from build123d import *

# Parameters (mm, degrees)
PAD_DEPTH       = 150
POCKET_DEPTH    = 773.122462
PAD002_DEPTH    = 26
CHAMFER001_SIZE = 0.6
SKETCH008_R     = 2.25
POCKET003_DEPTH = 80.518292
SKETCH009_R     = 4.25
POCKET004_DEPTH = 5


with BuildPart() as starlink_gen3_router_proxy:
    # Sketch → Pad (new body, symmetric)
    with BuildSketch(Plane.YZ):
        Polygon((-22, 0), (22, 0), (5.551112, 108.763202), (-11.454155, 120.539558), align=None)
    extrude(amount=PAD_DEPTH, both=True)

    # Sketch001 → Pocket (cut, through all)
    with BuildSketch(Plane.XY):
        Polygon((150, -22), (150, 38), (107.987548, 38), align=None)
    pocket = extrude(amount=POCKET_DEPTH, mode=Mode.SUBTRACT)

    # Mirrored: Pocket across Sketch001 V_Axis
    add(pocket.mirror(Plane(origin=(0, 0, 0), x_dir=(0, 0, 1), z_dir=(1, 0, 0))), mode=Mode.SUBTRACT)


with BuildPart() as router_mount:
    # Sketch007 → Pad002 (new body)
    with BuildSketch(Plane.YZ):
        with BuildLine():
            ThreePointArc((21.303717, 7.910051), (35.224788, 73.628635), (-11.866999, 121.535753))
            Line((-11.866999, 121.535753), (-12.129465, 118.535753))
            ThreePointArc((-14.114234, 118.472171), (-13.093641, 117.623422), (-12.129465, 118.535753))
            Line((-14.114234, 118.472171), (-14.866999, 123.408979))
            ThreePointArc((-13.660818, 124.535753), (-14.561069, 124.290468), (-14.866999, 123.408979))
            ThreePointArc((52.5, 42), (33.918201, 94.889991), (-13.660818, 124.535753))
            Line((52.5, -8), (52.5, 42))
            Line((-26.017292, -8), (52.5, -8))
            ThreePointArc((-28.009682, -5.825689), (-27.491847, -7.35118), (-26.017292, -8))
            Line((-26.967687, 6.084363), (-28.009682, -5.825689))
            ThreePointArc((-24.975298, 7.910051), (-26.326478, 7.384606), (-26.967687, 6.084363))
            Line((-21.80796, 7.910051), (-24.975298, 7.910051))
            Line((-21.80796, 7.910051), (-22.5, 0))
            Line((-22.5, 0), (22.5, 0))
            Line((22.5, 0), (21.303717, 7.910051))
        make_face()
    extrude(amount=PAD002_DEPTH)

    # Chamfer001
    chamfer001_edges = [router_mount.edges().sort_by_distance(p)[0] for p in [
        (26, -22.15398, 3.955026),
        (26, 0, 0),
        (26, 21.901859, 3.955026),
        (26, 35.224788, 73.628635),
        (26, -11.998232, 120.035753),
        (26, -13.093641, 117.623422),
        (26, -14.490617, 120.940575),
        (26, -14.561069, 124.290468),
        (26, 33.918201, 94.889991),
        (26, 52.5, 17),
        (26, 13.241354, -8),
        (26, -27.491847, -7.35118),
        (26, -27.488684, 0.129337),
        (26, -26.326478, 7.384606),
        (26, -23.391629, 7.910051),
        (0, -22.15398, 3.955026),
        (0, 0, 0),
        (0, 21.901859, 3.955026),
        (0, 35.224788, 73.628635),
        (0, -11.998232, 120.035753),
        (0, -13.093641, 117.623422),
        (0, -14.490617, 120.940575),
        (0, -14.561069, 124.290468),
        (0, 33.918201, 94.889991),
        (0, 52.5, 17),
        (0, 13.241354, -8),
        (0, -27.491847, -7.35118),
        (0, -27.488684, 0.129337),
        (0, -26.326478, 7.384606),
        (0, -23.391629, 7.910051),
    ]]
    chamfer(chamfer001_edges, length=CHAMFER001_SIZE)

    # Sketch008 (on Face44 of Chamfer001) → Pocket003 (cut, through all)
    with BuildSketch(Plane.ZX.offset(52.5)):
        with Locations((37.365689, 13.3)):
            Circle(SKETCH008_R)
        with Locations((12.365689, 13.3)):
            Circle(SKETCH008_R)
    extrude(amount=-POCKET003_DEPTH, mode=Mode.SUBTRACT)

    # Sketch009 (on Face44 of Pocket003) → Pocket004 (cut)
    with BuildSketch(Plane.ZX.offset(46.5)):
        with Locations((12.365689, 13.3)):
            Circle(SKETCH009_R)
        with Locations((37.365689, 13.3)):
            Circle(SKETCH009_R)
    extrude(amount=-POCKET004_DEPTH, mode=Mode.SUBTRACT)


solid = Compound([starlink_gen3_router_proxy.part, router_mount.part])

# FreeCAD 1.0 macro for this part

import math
import FreeCAD as App
import Part
import Sketcher
from FreeCAD import Vector
Q = App.Units.Quantity


def edges_at(feature, points):
    """Names of the edges that pass closest to the given points."""
    edges = feature.Shape.Edges
    near = lambda p: min(range(len(edges)), key=lambda i: edges[i].distToShape(Part.Vertex(*p))[0])
    return sorted({f"Edge{near(p) + 1}" for p in points})


def add_polygon(sketch, points):
    """Adds a closed chain of lines whose ends are joined by coincident constraints."""
    first, n = sketch.GeometryCount, len(points)
    for a, b in zip(points, points[1:] + points[:1]):
        sketch.addGeometry(Part.LineSegment(App.Vector(*a, 0), App.Vector(*b, 0)), False)
    for i in range(n):
        sketch.addConstraint(Sketcher.Constraint("Coincident", first + i, 2, first + (i + 1) % n, 1))

doc = App.newDocument("Part")
params = doc.addObject("Spreadsheet::Sheet", "Params")
for row, (alias, value) in enumerate([
    ("sketch1_width", "44 mm"),
    ("sketch1_length", "110 mm"),
    ("sketch1_length2", "121 mm"),
    ("pad1_length", "300 mm"),
    ("sketch2_height", "60 mm"),
    ("sketch3_radius", "70.999999 mm"),
    ("sketch3_radius2", "1.999999 mm"),
    ("sketch3_radius3", "1 mm"),
    ("sketch3_width", "45 mm"),
    ("sketch3_height", "50 mm"),
    ("pad2_length", "26 mm"),
    ("chamfer_size", "0.6 mm"),
    ("sketch4_diameter", "4.5 mm"),
    ("sketch5_diameter", "8.5 mm"),
    ("pocket3_length", "5 mm"),
], start=1):
    params.set(f"A{row}", alias)
    params.set(f"B{row}", "=" + value)
    params.setAlias(f"B{row}", alias)

body = doc.addObject("PartDesign::Body", "Body")

sketch1 = doc.addObject("Sketcher::SketchObject", "Sketch")
body.addObject(sketch1)
sketch1.AttachmentSupport = (doc.YZ_Plane, [""])
sketch1.MapMode = "FlatFace"
add_polygon(sketch1, [(-22, 0), (22, 0), (5.551112, 108.763202), (-11.454155, 120.539558)])
sketch1.addConstraint([
    Sketcher.Constraint("Horizontal", 0),
    Sketcher.Constraint("Symmetric", 0, 2, 3, 2, -1, 1),
    Sketcher.Constraint("DistanceX", 0, 1, 0, 2, Q("44 mm")),
    Sketcher.Constraint("Angle", 3, Q("-95 deg")),
    Sketcher.Constraint("Distance", 1, Q("110 mm")),
    Sketcher.Constraint("Distance", 3, Q("121 mm")),
    Sketcher.Constraint("Angle", 1, Q("98.6 deg")),
])
sketch1.setExpression("Constraints[6]", "Params.sketch1_width")
sketch1.setExpression("Constraints[8]", "Params.sketch1_length")
sketch1.setExpression("Constraints[9]", "Params.sketch1_length2")
pad1 = doc.addObject("PartDesign::Pad", "Pad")
body.addObject(pad1)
pad1.Profile = sketch1
pad1.setExpression("Length", "Params.pad1_length")
pad1.Midplane = True

sketch2 = doc.addObject("Sketcher::SketchObject", "Sketch001")
body.addObject(sketch2)
sketch2.AttachmentSupport = (doc.XY_Plane, [""])
sketch2.MapMode = "FlatFace"
add_polygon(sketch2, [(150, -22), (150, 38), (107.987548, 38)])
sketch2.addConstraint([
    Sketcher.Constraint("Vertical", 0),
    Sketcher.Constraint("Horizontal", 1),
    Sketcher.Constraint("DistanceY", 0, 1, 0, 2, Q("60 mm")),
    Sketcher.Constraint("Angle", 2, Q("-55 deg")),
    Sketcher.Constraint("DistanceX", -1, 1, 0, 2, Q("150 mm")),
    Sketcher.Constraint("DistanceY", -1, 1, 0, 2, Q("38 mm")),
])
sketch2.setExpression("Constraints[5]", "Params.sketch2_height")
pocket1 = doc.addObject("PartDesign::Pocket", "Pocket")
body.addObject(pocket1)
pocket1.Profile = sketch2
pocket1.Type = "ThroughAll"
pocket1.Reversed = True
doc.recompute()

mirrored = doc.addObject("PartDesign::Mirrored", "Mirrored")
body.addObject(mirrored)
mirrored.Originals = [pocket1]
mirrored.MirrorPlane = (doc.YZ_Plane, [""])
body.Tip = mirrored
body2 = doc.addObject("PartDesign::Body", "Body001")

sketch3 = doc.addObject("Sketcher::SketchObject", "Sketch002")
body2.addObject(sketch3)
sketch3.AttachmentSupport = (doc.getObject("YZ_Plane001"), [""])
sketch3.MapMode = "FlatFace"
sketch3.addGeometry([
    Part.ArcOfCircle(Part.Circle(Vector(-32.93039, 53.732114, 0), Vector(0, 0, 1), 70.999999), math.radians(-40.194261), math.radians(72.742446)),
    Part.LineSegment(Vector(21.303717, 7.910051, 0), Vector(22.5, 0, 0)),
    Part.LineSegment(Vector(22.5, 0, 0), Vector(-22.5, 0, 0)),
    Part.LineSegment(Vector(-22.5, 0, 0), Vector(-21.80796, 7.910051, 0)),
    Part.LineSegment(Vector(-21.80796, 7.910051, 0), Vector(-24.975298, 7.910051, 0)),
    Part.ArcOfCircle(Part.Circle(Vector(-24.975298, 5.910052, 0), Vector(0, 0, 1), 1.999999), math.radians(89.999996), math.radians(175)),
    Part.LineSegment(Vector(-26.967687, 6.084363, 0), Vector(-28.009682, -5.825689, 0)),
    Part.ArcOfCircle(Part.Circle(Vector(-26.017292, -5.999999, 0), Vector(0, 0, 1), 2.000001), math.radians(175.000044), math.radians(269.999987)),
    Part.LineSegment(Vector(-26.017292, -8, 0), Vector(52.5, -8, 0)),
    Part.LineSegment(Vector(52.5, -8, 0), Vector(52.5, 42, 0)),
    Part.ArcOfCircle(Part.Circle(Vector(-32.062168, 42, 0), Vector(0, 0, 1), 84.562168), math.radians(0), math.radians(77.43146)),
    Part.ArcOfCircle(Part.Circle(Vector(-13.878425, 123.559717, 0), Vector(0, 0, 1), 1), math.radians(77.431457), math.radians(188.669685)),
    Part.LineSegment(Vector(-14.866999, 123.408979, 0), Vector(-14.114234, 118.472171, 0)),
    Part.ArcOfCircle(Part.Circle(Vector(-13.12566, 118.62291, 0), Vector(0, 0, 1), 1), math.radians(-171.33027), math.radians(-5.000049)),
    Part.LineSegment(Vector(-12.129465, 118.535753, 0), Vector(-11.866999, 121.535753, 0)),
], False)
sketch3.addConstraint([
    Sketcher.Constraint("Coincident", 0, 1, 1, 1),
    Sketcher.Constraint("Coincident", 1, 2, 2, 1),
    Sketcher.Constraint("Coincident", 2, 2, 3, 1),
    Sketcher.Constraint("Coincident", 3, 2, 4, 1),
    Sketcher.Constraint("Tangent", 4, 2, 5, 1),
    Sketcher.Constraint("Tangent", 5, 2, 6, 1),
    Sketcher.Constraint("Tangent", 6, 2, 7, 1),
    Sketcher.Constraint("Tangent", 7, 2, 8, 1),
    Sketcher.Constraint("Coincident", 8, 2, 9, 1),
    Sketcher.Constraint("Tangent", 9, 2, 10, 1),
    Sketcher.Constraint("Tangent", 10, 2, 11, 1),
    Sketcher.Constraint("Tangent", 11, 2, 12, 1),
    Sketcher.Constraint("Tangent", 12, 2, 13, 1),
    Sketcher.Constraint("Tangent", 13, 2, 14, 1),
    Sketcher.Constraint("Coincident", 14, 2, 0, 2),
    Sketcher.Constraint("Horizontal", 2),
    Sketcher.Constraint("Horizontal", 4),
    Sketcher.Constraint("Horizontal", 8),
    Sketcher.Constraint("Vertical", 9),
    Sketcher.Constraint("Equal", 5, 7),
    Sketcher.Constraint("Equal", 11, 13),
    Sketcher.Constraint("Symmetric", 1, 2, 2, 2, -1, 1),
    Sketcher.Constraint("Parallel", 3, 6),
    Sketcher.Constraint("Parallel", 6, 14),
    Sketcher.Constraint("Horizontal", 0, 1, 3, 2),
    Sketcher.Constraint("Radius", 0, Q("70.999999 mm")),
    Sketcher.Constraint("Radius", 5, Q("1.999999 mm")),
    Sketcher.Constraint("Radius", 11, Q("1 mm")),
    Sketcher.Constraint("DistanceX", 2, 2, 2, 1, Q("45 mm")),
    Sketcher.Constraint("DistanceY", 9, 1, 9, 2, Q("50 mm")),
    Sketcher.Constraint("Angle", 3, Q("84.999998 deg")),
    Sketcher.Constraint("Distance", 1, Q("8 mm")),
    Sketcher.Constraint("DistanceY", 7, 3, -1, 1, Q("5.999999 mm")),
    Sketcher.Constraint("Angle", 1, Q("-81.399998 deg")),
    Sketcher.Constraint("DistanceX", 1, 2, 8, 2, Q("30 mm")),
    Sketcher.Constraint("DistanceY", 13, 2, 10, 2, Q("6 mm")),
    Sketcher.Constraint("DistanceY", 13, 2, 14, 2, Q("3 mm")),
    Sketcher.Constraint("DistanceX", 11, 2, 14, 2, Q("3 mm")),
    Sketcher.Constraint("DistanceX", 11, 2, -1, 1, Q("14.866999 mm")),
    Sketcher.Constraint("Radius", 10, Q("84.562168 mm")),
    Sketcher.Constraint("DistanceX", 8, 1, 8, 2, Q("78.517292 mm")),
])
sketch3.setExpression("Constraints[25]", "Params.sketch3_radius")
sketch3.setExpression("Constraints[26]", "Params.sketch3_radius2")
sketch3.setExpression("Constraints[27]", "Params.sketch3_radius3")
sketch3.setExpression("Constraints[28]", "Params.sketch3_width")
sketch3.setExpression("Constraints[29]", "Params.sketch3_height")
pad2 = doc.addObject("PartDesign::Pad", "Pad001")
body2.addObject(pad2)
pad2.Profile = sketch3
pad2.setExpression("Length", "Params.pad2_length")
doc.recompute()

chamfer = doc.addObject("PartDesign::Chamfer", "Chamfer")
body2.addObject(chamfer)
chamfer.Base = (pad2, edges_at(pad2, [
    (26, -22.154, 3.955),
    (26, 0, 0),
    (26, 21.902, 3.955),
    (26, 35.225, 73.629),
    (26, -11.998, 120.036),
    (26, -13.094, 117.623),
    (26, -14.491, 120.941),
    (26, -14.561, 124.29),
    (26, 33.918, 94.89),
    (26, 52.5, 17),
    (26, 13.241, -8),
    (26, -27.492, -7.351),
    (26, -27.489, 0.129),
    (26, -26.326, 7.385),
    (26, -23.392, 7.91),
    (0, -22.154, 3.955),
    (0, 0, 0),
    (0, 21.902, 3.955),
    (0, 35.225, 73.629),
    (0, -11.998, 120.036),
    (0, -13.094, 117.623),
    (0, -14.491, 120.941),
    (0, -14.561, 124.29),
    (0, 33.918, 94.89),
    (0, 52.5, 17),
    (0, 13.241, -8),
    (0, -27.492, -7.351),
    (0, -27.489, 0.129),
    (0, -26.326, 7.385),
    (0, -23.392, 7.91),
]))
chamfer.setExpression("Size", "Params.chamfer_size")

sketch4 = doc.addObject("Sketcher::SketchObject", "Sketch003")
body2.addObject(sketch4)
sketch4.AttachmentSupport = (doc.getObject("XZ_Plane001"), [""])
sketch4.MapMode = "FlatFace"
sketch4.AttachmentOffset = App.Placement(Vector(0, 0, -52.5), App.Rotation())
sketch4.addGeometry([
    Part.Circle(Vector(13.3, 37.365689, 0), Vector(0, 0, 1), 2.25),
    Part.Circle(Vector(13.3, 12.365689, 0), Vector(0, 0, 1), 2.25),
], False)
sketch4.addConstraint([
    Sketcher.Constraint("Equal", 0, 1),
    Sketcher.Constraint("Vertical", 0, 3, 1, 3),
    Sketcher.Constraint("Diameter", 0, Q("4.5 mm")),
    Sketcher.Constraint("DistanceY", 1, 3, 0, 3, Q("25 mm")),
    Sketcher.Constraint("DistanceX", -1, 1, 0, 3, Q("13.3 mm")),
    Sketcher.Constraint("DistanceY", -1, 1, 0, 3, Q("37.365689 mm")),
])
sketch4.setExpression("Constraints[2]", "Params.sketch4_diameter")
pocket2 = doc.addObject("PartDesign::Pocket", "Pocket001")
body2.addObject(pocket2)
pocket2.Profile = sketch4
pocket2.Type = "ThroughAll"
pocket2.Reversed = True

sketch5 = doc.addObject("Sketcher::SketchObject", "Sketch004")
body2.addObject(sketch5)
sketch5.AttachmentSupport = (doc.getObject("XZ_Plane001"), [""])
sketch5.MapMode = "FlatFace"
sketch5.AttachmentOffset = App.Placement(Vector(0, 0, -46.5), App.Rotation())
sketch5.addGeometry([
    Part.Circle(Vector(13.3, 12.365689, 0), Vector(0, 0, 1), 4.25),
    Part.Circle(Vector(13.3, 37.365689, 0), Vector(0, 0, 1), 4.25),
], False)
sketch5.addConstraint([
    Sketcher.Constraint("Equal", 0, 1),
    Sketcher.Constraint("Vertical", 0, 3, 1, 3),
    Sketcher.Constraint("Diameter", 0, Q("8.5 mm")),
    Sketcher.Constraint("DistanceY", 0, 3, 1, 3, Q("25 mm")),
    Sketcher.Constraint("DistanceX", -1, 1, 0, 3, Q("13.3 mm")),
    Sketcher.Constraint("DistanceY", -1, 1, 0, 3, Q("12.365689 mm")),
])
sketch5.setExpression("Constraints[2]", "Params.sketch5_diameter")
pocket3 = doc.addObject("PartDesign::Pocket", "Pocket002")
body2.addObject(pocket3)
pocket3.Profile = sketch5
pocket3.setExpression("Length", "Params.pocket3_length")
pocket3.Reversed = True

doc.recompute()
